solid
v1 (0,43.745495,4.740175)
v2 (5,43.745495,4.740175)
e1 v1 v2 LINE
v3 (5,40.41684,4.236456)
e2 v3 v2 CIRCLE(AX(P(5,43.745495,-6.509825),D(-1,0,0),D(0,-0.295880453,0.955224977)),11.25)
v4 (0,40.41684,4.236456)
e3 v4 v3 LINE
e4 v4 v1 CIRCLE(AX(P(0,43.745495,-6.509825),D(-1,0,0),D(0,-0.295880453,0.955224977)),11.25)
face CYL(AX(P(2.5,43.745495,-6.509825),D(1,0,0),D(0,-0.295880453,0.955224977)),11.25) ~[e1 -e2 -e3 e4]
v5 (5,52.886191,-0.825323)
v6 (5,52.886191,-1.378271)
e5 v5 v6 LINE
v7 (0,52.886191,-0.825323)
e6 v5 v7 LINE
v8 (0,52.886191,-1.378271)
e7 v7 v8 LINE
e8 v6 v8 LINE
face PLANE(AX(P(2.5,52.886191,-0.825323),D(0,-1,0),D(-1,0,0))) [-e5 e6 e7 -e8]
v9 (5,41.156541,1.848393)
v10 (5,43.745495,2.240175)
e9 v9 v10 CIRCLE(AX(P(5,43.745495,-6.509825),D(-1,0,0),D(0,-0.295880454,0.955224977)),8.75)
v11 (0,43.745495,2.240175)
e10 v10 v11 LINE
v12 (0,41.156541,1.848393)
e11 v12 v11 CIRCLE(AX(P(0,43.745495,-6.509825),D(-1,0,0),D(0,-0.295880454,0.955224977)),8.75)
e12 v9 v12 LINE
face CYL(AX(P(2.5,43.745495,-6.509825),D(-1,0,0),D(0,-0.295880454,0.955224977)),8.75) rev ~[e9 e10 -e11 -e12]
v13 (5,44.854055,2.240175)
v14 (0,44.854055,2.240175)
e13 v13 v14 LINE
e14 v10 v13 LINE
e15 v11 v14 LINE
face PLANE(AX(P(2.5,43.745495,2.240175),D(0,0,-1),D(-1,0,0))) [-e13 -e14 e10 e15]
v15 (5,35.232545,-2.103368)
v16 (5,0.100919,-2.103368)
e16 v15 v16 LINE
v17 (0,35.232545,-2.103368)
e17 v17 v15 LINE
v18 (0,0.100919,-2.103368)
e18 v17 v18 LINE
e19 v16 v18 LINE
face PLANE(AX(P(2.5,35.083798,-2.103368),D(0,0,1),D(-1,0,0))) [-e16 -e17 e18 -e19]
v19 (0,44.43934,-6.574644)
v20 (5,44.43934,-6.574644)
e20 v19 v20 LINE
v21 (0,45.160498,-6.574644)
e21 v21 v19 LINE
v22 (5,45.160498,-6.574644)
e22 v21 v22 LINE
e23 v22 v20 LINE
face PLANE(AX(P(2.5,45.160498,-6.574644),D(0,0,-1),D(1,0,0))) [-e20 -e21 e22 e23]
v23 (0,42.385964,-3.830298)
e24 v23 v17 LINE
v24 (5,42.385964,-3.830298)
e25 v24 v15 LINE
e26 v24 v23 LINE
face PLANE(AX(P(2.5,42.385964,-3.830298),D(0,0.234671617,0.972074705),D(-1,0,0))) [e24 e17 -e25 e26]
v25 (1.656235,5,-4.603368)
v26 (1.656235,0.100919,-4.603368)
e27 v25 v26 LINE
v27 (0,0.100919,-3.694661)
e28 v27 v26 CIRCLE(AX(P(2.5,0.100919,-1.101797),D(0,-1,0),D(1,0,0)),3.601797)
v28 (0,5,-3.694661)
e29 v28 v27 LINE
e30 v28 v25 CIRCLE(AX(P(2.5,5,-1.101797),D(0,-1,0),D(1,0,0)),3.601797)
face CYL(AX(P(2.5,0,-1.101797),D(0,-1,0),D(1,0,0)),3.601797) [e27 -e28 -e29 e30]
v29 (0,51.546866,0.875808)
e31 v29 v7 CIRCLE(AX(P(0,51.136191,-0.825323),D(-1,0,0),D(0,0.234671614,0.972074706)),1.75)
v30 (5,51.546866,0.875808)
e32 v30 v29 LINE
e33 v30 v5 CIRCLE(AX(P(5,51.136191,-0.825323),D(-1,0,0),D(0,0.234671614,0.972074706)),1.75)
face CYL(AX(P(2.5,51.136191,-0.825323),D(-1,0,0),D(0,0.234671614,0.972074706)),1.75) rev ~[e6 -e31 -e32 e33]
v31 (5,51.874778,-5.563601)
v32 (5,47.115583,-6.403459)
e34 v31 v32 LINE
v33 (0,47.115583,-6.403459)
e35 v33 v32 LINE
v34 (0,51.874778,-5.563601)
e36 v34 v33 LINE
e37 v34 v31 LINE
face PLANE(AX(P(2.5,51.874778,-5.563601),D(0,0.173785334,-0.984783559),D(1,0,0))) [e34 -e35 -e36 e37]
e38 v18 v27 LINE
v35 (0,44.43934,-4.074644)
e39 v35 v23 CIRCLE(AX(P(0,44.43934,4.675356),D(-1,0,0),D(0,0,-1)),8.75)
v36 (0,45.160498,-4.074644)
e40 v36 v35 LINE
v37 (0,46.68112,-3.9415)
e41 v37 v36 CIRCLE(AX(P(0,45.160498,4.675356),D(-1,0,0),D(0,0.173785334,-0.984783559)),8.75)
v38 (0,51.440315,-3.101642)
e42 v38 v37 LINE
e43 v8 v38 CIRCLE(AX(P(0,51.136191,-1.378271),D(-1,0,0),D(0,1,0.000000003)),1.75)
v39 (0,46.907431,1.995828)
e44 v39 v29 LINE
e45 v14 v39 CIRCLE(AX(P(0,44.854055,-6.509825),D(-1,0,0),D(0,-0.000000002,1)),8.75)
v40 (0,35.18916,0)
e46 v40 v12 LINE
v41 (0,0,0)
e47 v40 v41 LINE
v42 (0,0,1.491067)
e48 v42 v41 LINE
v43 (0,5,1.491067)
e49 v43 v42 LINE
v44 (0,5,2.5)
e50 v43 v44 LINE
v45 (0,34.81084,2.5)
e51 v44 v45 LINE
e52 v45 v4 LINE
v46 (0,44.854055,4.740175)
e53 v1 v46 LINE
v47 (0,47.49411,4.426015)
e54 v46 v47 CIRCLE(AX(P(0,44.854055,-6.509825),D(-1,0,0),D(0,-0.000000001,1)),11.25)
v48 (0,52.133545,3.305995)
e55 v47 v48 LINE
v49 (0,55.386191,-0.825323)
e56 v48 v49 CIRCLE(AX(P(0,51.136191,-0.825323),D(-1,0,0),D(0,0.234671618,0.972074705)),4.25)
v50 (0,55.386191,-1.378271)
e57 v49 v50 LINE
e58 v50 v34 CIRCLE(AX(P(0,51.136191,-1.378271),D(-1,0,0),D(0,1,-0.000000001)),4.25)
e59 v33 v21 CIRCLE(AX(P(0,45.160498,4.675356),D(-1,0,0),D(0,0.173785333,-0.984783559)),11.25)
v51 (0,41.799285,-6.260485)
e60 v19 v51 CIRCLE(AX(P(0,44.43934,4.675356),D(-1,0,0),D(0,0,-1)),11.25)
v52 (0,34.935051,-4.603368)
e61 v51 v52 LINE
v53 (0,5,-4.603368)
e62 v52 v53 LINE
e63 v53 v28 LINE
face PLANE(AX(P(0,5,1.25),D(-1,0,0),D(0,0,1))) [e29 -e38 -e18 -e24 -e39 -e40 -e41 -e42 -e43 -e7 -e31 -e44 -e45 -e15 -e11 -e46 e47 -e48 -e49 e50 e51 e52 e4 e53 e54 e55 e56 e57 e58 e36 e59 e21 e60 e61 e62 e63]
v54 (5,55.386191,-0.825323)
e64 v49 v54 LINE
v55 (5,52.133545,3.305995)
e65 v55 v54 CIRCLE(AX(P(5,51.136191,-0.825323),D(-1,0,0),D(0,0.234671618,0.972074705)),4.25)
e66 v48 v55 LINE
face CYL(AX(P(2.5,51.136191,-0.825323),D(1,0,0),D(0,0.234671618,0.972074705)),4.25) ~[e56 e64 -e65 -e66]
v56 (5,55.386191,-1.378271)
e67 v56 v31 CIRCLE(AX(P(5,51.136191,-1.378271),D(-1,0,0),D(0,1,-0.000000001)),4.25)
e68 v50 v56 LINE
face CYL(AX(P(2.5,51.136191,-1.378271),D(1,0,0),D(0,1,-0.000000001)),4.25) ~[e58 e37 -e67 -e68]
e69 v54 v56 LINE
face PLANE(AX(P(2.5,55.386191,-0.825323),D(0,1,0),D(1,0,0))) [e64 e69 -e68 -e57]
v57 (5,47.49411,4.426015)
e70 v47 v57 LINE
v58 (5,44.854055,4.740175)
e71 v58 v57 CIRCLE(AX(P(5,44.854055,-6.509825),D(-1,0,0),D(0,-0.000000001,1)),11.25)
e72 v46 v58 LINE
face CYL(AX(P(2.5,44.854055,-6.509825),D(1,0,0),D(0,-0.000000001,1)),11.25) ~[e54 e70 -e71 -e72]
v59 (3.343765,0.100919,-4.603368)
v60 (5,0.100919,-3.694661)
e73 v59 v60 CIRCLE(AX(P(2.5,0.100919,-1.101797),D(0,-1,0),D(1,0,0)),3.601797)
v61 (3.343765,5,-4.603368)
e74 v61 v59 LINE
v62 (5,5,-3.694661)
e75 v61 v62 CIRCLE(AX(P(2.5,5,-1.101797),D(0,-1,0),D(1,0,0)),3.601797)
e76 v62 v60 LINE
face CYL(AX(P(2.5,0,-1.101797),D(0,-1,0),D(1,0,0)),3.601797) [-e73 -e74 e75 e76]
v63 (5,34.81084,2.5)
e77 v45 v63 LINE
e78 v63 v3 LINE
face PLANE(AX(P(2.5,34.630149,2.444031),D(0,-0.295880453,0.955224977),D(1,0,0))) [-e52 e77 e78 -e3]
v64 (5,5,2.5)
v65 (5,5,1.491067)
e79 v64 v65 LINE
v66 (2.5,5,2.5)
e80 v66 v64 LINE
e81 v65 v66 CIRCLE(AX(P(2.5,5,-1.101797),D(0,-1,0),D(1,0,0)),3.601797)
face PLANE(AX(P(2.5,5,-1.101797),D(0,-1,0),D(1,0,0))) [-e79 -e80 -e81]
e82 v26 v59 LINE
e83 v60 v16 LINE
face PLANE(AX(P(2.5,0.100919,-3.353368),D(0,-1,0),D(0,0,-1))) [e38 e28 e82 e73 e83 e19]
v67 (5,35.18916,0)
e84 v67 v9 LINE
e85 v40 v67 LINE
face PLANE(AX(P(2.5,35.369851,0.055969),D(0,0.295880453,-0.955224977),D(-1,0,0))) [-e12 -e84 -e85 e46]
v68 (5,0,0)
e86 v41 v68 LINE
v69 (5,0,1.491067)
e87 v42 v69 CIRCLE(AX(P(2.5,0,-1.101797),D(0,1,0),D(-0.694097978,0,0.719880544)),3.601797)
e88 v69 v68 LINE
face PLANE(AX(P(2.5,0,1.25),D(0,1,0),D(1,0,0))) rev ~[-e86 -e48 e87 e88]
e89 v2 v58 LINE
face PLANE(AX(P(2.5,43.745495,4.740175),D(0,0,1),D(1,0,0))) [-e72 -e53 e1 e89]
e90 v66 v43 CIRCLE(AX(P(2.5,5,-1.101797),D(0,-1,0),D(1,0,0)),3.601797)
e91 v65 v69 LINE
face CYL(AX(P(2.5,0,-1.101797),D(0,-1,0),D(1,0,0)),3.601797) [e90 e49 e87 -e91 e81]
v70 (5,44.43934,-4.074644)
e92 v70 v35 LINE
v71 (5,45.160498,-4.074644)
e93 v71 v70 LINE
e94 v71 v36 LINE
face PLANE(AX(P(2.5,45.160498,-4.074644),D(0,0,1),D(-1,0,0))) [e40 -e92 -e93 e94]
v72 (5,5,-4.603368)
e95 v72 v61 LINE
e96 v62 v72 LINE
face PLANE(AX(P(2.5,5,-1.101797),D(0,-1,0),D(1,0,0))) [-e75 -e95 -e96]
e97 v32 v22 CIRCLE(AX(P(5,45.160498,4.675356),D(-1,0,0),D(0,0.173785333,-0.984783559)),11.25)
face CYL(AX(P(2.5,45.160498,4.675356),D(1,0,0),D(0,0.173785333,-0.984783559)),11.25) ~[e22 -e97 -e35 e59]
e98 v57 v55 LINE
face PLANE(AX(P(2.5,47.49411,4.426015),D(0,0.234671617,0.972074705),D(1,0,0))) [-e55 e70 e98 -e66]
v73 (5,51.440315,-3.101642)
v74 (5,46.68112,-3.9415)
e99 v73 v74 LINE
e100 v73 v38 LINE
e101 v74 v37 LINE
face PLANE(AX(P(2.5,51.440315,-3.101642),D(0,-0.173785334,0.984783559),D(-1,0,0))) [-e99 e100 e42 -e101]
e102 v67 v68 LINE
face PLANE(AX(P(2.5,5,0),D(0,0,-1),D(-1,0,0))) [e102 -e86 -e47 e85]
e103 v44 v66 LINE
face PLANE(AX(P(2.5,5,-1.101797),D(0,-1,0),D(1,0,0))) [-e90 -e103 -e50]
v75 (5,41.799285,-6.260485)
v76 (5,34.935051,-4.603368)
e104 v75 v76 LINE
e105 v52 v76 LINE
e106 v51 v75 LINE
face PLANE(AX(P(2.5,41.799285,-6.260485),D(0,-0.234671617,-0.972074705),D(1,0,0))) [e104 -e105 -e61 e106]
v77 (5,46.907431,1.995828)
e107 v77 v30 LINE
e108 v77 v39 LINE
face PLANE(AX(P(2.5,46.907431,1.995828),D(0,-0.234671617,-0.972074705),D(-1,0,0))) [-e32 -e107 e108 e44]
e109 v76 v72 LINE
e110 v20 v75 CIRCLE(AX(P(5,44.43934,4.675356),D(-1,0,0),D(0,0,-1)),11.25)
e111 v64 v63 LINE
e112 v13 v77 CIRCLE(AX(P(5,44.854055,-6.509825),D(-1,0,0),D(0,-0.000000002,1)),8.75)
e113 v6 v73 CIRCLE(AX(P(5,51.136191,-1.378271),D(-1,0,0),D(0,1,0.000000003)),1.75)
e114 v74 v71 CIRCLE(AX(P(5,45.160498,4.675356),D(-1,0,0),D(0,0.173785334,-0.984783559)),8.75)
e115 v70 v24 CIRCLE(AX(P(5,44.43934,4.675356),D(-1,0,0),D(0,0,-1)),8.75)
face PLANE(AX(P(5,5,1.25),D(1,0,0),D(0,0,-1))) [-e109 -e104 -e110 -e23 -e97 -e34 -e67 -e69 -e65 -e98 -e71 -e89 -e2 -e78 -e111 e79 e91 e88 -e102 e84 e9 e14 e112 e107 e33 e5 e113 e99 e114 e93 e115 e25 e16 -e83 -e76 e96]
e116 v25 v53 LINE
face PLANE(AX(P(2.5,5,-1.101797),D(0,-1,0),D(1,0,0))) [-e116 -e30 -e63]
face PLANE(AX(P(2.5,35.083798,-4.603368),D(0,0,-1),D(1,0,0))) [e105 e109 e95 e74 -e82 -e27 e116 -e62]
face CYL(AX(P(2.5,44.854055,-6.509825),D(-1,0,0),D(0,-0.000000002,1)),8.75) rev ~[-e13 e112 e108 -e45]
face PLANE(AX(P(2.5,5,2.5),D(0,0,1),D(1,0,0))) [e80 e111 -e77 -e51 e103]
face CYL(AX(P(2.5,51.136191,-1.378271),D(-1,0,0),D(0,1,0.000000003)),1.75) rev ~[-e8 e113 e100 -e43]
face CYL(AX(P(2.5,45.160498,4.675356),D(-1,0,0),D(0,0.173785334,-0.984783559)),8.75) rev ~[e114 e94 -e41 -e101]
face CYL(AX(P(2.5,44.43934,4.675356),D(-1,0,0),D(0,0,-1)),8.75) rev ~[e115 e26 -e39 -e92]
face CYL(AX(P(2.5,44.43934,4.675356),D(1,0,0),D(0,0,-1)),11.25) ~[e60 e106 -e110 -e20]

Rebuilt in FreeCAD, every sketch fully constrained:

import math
import FreeCAD as App
import Part
import Sketcher


def add_polygon(sketch, points):
    """Adds a closed chain of lines whose ends are joined by coincident constraints."""
    first, n = sketch.GeometryCount, len(points)
    for a, b in zip(points, points[1:] + points[:1]):
        sketch.addGeometry(Part.LineSegment(App.Vector(*a, 0), App.Vector(*b, 0)), False)
    for i in range(n):
        sketch.addConstraint(Sketcher.Constraint("Coincident", first + i, 2, first + (i + 1) % n, 1))

doc = App.newDocument("Part")
body = doc.addObject("PartDesign::Body", "Body")

# Sketch on XZ plane
sketch1 = body.newObject("Sketcher::SketchObject", "Sketch")
sketch1.AttachmentSupport = (doc.getObject("XZ_Plane"), [""])
sketch1.MapMode = "FlatFace"
add_polygon(sketch1, [(0, 0), (0, 2.5), (5, 2.5), (5, 0)])  # lines 0-3
sketch1.addConstraint([
    Sketcher.Constraint("Vertical", 0),
    Sketcher.Constraint("Horizontal", 1),
    Sketcher.Constraint("Vertical", 2),
    Sketcher.Constraint("Horizontal", 3),
    Sketcher.Constraint("Coincident", 3, 2, -1, 1),
    Sketcher.Constraint("DistanceX", 1, 1, 1, 2, 5.0),
    Sketcher.Constraint("DistanceY", 0, 1, 0, 2, 2.5),
])
pad1 = body.newObject("PartDesign::Pad", "Pad")
pad1.Profile = sketch1
pad1.Length = 5
pad1.Reversed = True

# Sketch on XZ plane
sketch2 = body.newObject("Sketcher::SketchObject", "Sketch001")
sketch2.AttachmentSupport = (doc.getObject("XZ_Plane"), [""])
sketch2.MapMode = "FlatFace"
sketch2.AttachmentOffset = App.Placement(App.Vector(0, 0, -5), App.Rotation())
add_polygon(sketch2, [(0, 0), (0, 2.5), (5, 2.5), (5, 0)])  # lines 0-3
sketch2.addConstraint([
    Sketcher.Constraint("Vertical", 0),
    Sketcher.Constraint("Horizontal", 1),
    Sketcher.Constraint("Vertical", 2),
    Sketcher.Constraint("Horizontal", 3),
    Sketcher.Constraint("Coincident", 3, 2, -1, 1),
    Sketcher.Constraint("DistanceX", 1, 1, 1, 2, 5.0),
    Sketcher.Constraint("DistanceY", 0, 1, 0, 2, 2.5),
])

# Sketch on YZ plane
sketch3 = body.newObject("Sketcher::SketchObject", "Sketch002")
sketch3.AttachmentSupport = (doc.getObject("YZ_Plane"), [""])
sketch3.MapMode = "FlatFace"
sketch3.AttachmentOffset = App.Placement(App.Vector(0, 0, 2.5), App.Rotation())
sketch3.addGeometry([
    Part.LineSegment(App.Vector(5, 1.2, 0), App.Vector(35, 1.2, 0)),  # 0
    Part.LineSegment(App.Vector(35, 1.2, 0), App.Vector(40.8, 3, 0)),  # 1
    Part.ArcOfCircle(Part.Circle(App.Vector(43.7, -6.5, 0), App.Vector(0, 0, 1), 10), math.radians(90), math.radians(107.21)),  # 2
    Part.LineSegment(App.Vector(43.7, 3.5, 0), App.Vector(44.9, 3.5, 0)),  # 3
    Part.ArcOfCircle(Part.Circle(App.Vector(44.9, -6.5, 0), App.Vector(0, 0, 1), 10), math.radians(76.43), math.radians(90)),  # 4
    Part.LineSegment(App.Vector(47.2, 3.2, 0), App.Vector(51.8, 2.1, 0)),  # 5
    Part.ArcOfCircle(Part.Circle(App.Vector(51.1, -0.8, 0), App.Vector(0, 0, 1), 3), math.radians(0), math.radians(76)),  # 6
    Part.LineSegment(App.Vector(54.1, -0.8, 0), App.Vector(54.1, -1.4, 0)),  # 7
    Part.ArcOfCircle(Part.Circle(App.Vector(51.1, -1.4, 0), App.Vector(0, 0, 1), 3), math.radians(-80), math.radians(0)),  # 8
    Part.LineSegment(App.Vector(51.7, -4.3, 0), App.Vector(46.9, -5.2, 0)),  # 9
    Part.ArcOfCircle(Part.Circle(App.Vector(45.2, 4.7, 0), App.Vector(0, 0, 1), 10), math.radians(-90), math.radians(-79.99)),  # 10
    Part.LineSegment(App.Vector(45.2, -5.3, 0), App.Vector(44.4, -5.3, 0)),  # 11
    Part.ArcOfCircle(Part.Circle(App.Vector(44.4, 4.7, 0), App.Vector(0, 0, 1), 10), math.radians(-103.57), math.radians(-90)),  # 12
    Part.LineSegment(App.Vector(42.1, -5, 0), App.Vector(35.1, -3.4, 0)),  # 13
    Part.LineSegment(App.Vector(35.1, -3.4, 0), App.Vector(0.1, -3.4, 0)),  # 14
], False)
sketch3.addConstraint([
    Sketcher.Constraint("Coincident", 0, 2, 1, 1),
    Sketcher.Constraint("Tangent", 1, 2, 2, 2),
    Sketcher.Constraint("Tangent", 2, 1, 3, 1),
    Sketcher.Constraint("Tangent", 3, 2, 4, 2),
    Sketcher.Constraint("Tangent", 4, 1, 5, 1),
    Sketcher.Constraint("Tangent", 5, 2, 6, 2),
    Sketcher.Constraint("Tangent", 6, 1, 7, 1),
    Sketcher.Constraint("Tangent", 7, 2, 8, 2),
    Sketcher.Constraint("Tangent", 8, 1, 9, 1),
    Sketcher.Constraint("Tangent", 9, 2, 10, 2),
    Sketcher.Constraint("Tangent", 10, 1, 11, 1),
    Sketcher.Constraint("Tangent", 11, 2, 12, 2),
    Sketcher.Constraint("Tangent", 12, 1, 13, 1),
    Sketcher.Constraint("Coincident", 13, 2, 14, 1),
    Sketcher.Constraint("Horizontal", 0),
    Sketcher.Constraint("Horizontal", 3),
    Sketcher.Constraint("Vertical", 7),
    Sketcher.Constraint("Horizontal", 11),
    Sketcher.Constraint("Horizontal", 14),
    Sketcher.Constraint("Equal", 2, 4),
    Sketcher.Constraint("Equal", 6, 8),
    Sketcher.Constraint("Equal", 4, 10),
    Sketcher.Constraint("Equal", 10, 12),
    Sketcher.Constraint("Parallel", 5, 13),
    Sketcher.Constraint("Radius", 2, 10.0),
    Sketcher.Constraint("Radius", 6, 3.0),
    Sketcher.Constraint("DistanceX", 0, 1, 0, 2, 30.0),
    Sketcher.Constraint("DistanceX", -1, 1, 0, 1, 5.0),
    Sketcher.Constraint("DistanceY", -1, 1, 0, 1, 1.25),
    Sketcher.Constraint("DistanceX", 3, 1, 3, 2, 1.108559),
    Sketcher.Constraint("DistanceX", 14, 2, 14, 1, 34.982879),
    Sketcher.Constraint("DistanceY", 7, 2, 7, 1, 0.552948),
    Sketcher.Constraint("DistanceX", -1, 1, 10, 3, 45.160498),
    Sketcher.Constraint("DistanceY", -1, 1, 5, 2, 2.090901),
    Sketcher.Constraint("DistanceY", 8, 1, 6, 3, 3.507299),
    Sketcher.Constraint("Distance", 9, 4.832732),
    Sketcher.Constraint("DistanceX", 11, 2, 11, 1, 0.721158),
    Sketcher.Constraint("DistanceY", 8, 3, -1, 1, 1.378271),
    Sketcher.Constraint("DistanceX", -1, 1, 1, 2, 40.786691),
    Sketcher.Constraint("DistanceY", 13, 2, -1, 1, 3.353368),
])
doc.recompute()

additivepipe = body.newObject("PartDesign::AdditivePipe", "AdditivePipe")
additivepipe.Profile = sketch2
additivepipe.Spine = (sketch3, ["Edge1", "Edge2", "Edge3", "Edge4", "Edge5", "Edge6", "Edge7", "Edge8", "Edge9", "Edge10", "Edge11", "Edge12", "Edge13", "Edge14", "Edge15"])
additivepipe.Transition = "Right corner"

# Sketch on XZ plane
sketch4 = body.newObject("Sketcher::SketchObject", "Sketch003")
sketch4.AttachmentSupport = (doc.getObject("XZ_Plane"), [""])
sketch4.MapMode = "FlatFace"
sketch4.addGeometry([
    Part.Circle(App.Vector(2.5, -1.1, 0), App.Vector(0, 0, 1), 5.9),
    Part.Circle(App.Vector(2.5, -1.1, 0), App.Vector(0, 0, 1), 3.6),
], False)
sketch4.addConstraint([
    Sketcher.Constraint("Coincident", 1, 3, 0, 3),
    Sketcher.Constraint("DistanceX", -1, 1, 0, 3, 2.5),
    Sketcher.Constraint("Diameter", 0, 11.841672),
    Sketcher.Constraint("Diameter", 1, 7.203594),
    Sketcher.Constraint("DistanceY", 0, 3, -1, 1, 1.101797),
])
pocket1 = body.newObject("PartDesign::Pocket", "Pocket")
pocket1.Profile = sketch4
pocket1.Length = 5

doc.recompute()
